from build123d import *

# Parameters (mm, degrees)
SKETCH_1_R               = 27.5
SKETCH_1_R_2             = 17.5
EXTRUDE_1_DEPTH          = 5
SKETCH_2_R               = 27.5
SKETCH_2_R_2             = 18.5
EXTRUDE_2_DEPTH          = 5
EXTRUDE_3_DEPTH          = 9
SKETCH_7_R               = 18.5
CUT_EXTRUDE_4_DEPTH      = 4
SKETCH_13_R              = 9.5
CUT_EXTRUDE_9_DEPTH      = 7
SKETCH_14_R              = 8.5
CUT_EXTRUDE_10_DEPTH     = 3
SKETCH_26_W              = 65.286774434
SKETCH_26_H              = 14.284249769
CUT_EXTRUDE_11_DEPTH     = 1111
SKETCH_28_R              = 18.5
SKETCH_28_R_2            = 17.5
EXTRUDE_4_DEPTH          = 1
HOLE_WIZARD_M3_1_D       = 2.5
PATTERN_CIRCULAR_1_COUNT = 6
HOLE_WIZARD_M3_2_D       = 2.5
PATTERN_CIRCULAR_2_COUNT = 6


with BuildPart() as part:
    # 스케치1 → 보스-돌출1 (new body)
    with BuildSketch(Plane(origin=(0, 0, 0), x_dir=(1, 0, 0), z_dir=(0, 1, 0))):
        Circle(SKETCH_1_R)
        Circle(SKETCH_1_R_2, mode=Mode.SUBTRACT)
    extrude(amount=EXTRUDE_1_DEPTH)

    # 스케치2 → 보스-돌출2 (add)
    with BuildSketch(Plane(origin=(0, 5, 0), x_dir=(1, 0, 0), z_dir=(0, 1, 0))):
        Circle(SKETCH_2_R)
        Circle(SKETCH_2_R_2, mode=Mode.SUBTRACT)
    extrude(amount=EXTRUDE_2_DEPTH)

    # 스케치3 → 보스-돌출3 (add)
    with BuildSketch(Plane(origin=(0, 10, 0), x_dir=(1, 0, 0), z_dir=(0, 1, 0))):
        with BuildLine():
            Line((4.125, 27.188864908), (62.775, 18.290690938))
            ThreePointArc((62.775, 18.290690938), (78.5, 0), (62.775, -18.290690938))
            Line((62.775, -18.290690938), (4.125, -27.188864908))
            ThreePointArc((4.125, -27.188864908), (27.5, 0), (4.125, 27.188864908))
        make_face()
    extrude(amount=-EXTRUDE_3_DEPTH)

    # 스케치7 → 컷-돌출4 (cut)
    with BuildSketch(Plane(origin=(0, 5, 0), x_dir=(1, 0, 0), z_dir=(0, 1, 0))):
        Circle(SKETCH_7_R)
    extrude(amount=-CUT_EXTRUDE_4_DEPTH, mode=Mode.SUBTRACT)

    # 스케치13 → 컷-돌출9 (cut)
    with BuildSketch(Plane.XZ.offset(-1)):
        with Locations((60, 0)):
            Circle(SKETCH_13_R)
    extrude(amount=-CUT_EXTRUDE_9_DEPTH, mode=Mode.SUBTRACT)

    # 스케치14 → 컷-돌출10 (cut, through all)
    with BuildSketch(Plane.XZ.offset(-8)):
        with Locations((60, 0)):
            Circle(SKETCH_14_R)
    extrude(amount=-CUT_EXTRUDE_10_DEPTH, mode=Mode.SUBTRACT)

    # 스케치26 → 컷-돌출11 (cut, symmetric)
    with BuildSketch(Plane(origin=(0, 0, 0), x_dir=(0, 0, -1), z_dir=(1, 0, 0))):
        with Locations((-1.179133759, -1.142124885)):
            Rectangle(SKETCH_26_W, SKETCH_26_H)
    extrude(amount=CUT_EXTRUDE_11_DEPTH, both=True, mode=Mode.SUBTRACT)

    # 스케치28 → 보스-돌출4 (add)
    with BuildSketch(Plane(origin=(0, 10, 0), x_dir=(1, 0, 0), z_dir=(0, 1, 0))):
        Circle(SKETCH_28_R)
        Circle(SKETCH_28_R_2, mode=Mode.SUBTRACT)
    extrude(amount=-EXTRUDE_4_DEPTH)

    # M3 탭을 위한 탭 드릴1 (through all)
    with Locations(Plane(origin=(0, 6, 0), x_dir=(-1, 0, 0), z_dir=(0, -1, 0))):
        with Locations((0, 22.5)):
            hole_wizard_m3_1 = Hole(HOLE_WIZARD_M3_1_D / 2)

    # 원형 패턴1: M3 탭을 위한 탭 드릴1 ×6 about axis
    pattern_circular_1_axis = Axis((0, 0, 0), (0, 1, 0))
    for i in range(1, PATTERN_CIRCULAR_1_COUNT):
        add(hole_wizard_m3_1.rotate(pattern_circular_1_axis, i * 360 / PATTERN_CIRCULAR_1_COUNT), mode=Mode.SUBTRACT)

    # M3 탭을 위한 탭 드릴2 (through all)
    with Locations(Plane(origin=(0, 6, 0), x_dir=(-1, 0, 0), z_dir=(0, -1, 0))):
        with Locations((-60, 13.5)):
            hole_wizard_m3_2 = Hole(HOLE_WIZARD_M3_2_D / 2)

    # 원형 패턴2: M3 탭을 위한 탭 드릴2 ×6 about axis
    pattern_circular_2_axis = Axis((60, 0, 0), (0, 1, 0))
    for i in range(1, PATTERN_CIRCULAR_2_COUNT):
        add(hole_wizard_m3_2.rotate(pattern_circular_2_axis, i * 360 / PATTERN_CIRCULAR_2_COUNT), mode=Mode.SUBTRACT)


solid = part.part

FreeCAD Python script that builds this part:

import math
import FreeCAD as App
import Part
import Sketcher
Q = App.Units.Quantity

doc = App.newDocument("Part")
body = doc.addObject("PartDesign::Body", "Body")

# Sketch on XZ plane
sketch1 = body.newObject("Sketcher::SketchObject", "Sketch")
sketch1.AttachmentSupport = (doc.getObject("XZ_Plane"), [""])
sketch1.MapMode = "FlatFace"
sketch1.addGeometry(Part.Circle(App.Vector(0, 0, 0), App.Vector(0, 0, 1), 27.5), False)
sketch1.addGeometry(Part.Circle(App.Vector(0, 0, 0), App.Vector(0, 0, 1), 17.5), False)
sketch1.addConstraint(Sketcher.Constraint("Coincident", 0, 3, -1, 1))
sketch1.addConstraint(Sketcher.Constraint("Coincident", 1, 3, -1, 1))
sketch1.addConstraint(Sketcher.Constraint("Diameter", 0, Q("55 mm")))
sketch1.addConstraint(Sketcher.Constraint("Diameter", 1, Q("35 mm")))
pad1 = body.newObject("PartDesign::Pad", "Pad")
pad1.Profile = sketch1
pad1.Length = 5
pad1.Reversed = True

# Sketch on XZ plane
sketch2 = body.newObject("Sketcher::SketchObject", "Sketch001")
sketch2.AttachmentSupport = (doc.getObject("XZ_Plane"), [""])
sketch2.MapMode = "FlatFace"
sketch2.AttachmentOffset = App.Placement(App.Vector(0, 0, -5), App.Rotation())
sketch2.addGeometry(Part.Circle(App.Vector(0, 0, 0), App.Vector(0, 0, 1), 27.5), False)
sketch2.addGeometry(Part.Circle(App.Vector(0, 0, 0), App.Vector(0, 0, 1), 18.5), False)
sketch2.addConstraint(Sketcher.Constraint("Coincident", 0, 3, -1, 1))
sketch2.addConstraint(Sketcher.Constraint("Coincident", 1, 3, -1, 1))
sketch2.addConstraint(Sketcher.Constraint("Diameter", 0, Q("55 mm")))
sketch2.addConstraint(Sketcher.Constraint("Diameter", 1, Q("37 mm")))
pad2 = body.newObject("PartDesign::Pad", "Pad001")
pad2.Profile = sketch2
pad2.Length = 5
pad2.Reversed = True

# Sketch on XZ plane
sketch3 = body.newObject("Sketcher::SketchObject", "Sketch002")
sketch3.AttachmentSupport = (doc.getObject("XZ_Plane"), [""])
sketch3.MapMode = "FlatFace"
sketch3.AttachmentOffset = App.Placement(App.Vector(0, 0, -10), App.Rotation())
sketch3.addGeometry(Part.LineSegment(App.Vector(62.775, -18.290691, 0), App.Vector(4.125, -27.188865, 0)), False)
sketch3.addGeometry(Part.ArcOfCircle(Part.Circle(App.Vector(0, 0, 0), App.Vector(0, 0, 1), 27.5), math.radians(-81.373073), math.radians(81.373073)), False)
sketch3.addGeometry(Part.LineSegment(App.Vector(4.125, 27.188865, 0), App.Vector(62.775, 18.290691, 0)), False)
sketch3.addGeometry(Part.ArcOfCircle(Part.Circle(App.Vector(60, 0, 0), App.Vector(0, 0, 1), 18.5), math.radians(-81.373073), math.radians(81.373073)), False)
sketch3.addConstraint(Sketcher.Constraint("Tangent", 0, 2, 1, 1))
sketch3.addConstraint(Sketcher.Constraint("Tangent", 1, 2, 2, 1))
sketch3.addConstraint(Sketcher.Constraint("Tangent", 2, 2, 3, 2))
sketch3.addConstraint(Sketcher.Constraint("Tangent", 3, 1, 0, 1))
sketch3.addConstraint(Sketcher.Constraint("Coincident", 1, 3, -1, 1))
sketch3.addConstraint(Sketcher.Constraint("PointOnObject", 3, 3, -1))
sketch3.addConstraint(Sketcher.Constraint("Radius", 1, Q("27.5 mm")))
sketch3.addConstraint(Sketcher.Constraint("Radius", 3, Q("18.5 mm")))
sketch3.addConstraint(Sketcher.Constraint("DistanceX", -1, 1, 3, 3, Q("60 mm")))
pad3 = body.newObject("PartDesign::Pad", "Pad002")
pad3.Profile = sketch3
pad3.Length = 9

# Sketch on XZ plane
sketch4 = body.newObject("Sketcher::SketchObject", "Sketch003")
sketch4.AttachmentSupport = (doc.getObject("XZ_Plane"), [""])
sketch4.MapMode = "FlatFace"
sketch4.AttachmentOffset = App.Placement(App.Vector(0, 0, -5), App.Rotation())
sketch4.addGeometry(Part.Circle(App.Vector(0, 0, 0), App.Vector(0, 0, 1), 18.5), False)
sketch4.addConstraint(Sketcher.Constraint("Coincident", 0, 3, -1, 1))
sketch4.addConstraint(Sketcher.Constraint("Diameter", 0, Q("37 mm")))
pocket1 = body.newObject("PartDesign::Pocket", "Pocket")
pocket1.Profile = sketch4
pocket1.Length = 4
pocket1.Reversed = True

# Sketch on XZ plane
sketch5 = body.newObject("Sketcher::SketchObject", "Sketch004")
sketch5.AttachmentSupport = (doc.getObject("XZ_Plane"), [""])
sketch5.MapMode = "FlatFace"
sketch5.AttachmentOffset = App.Placement(App.Vector(0, 0, -1), App.Rotation())
sketch5.addGeometry(Part.Circle(App.Vector(60, 0, 0), App.Vector(0, 0, 1), 9.5), False)
sketch5.addConstraint(Sketcher.Constraint("PointOnObject", 0, 3, -1))
sketch5.addConstraint(Sketcher.Constraint("Diameter", 0, Q("19 mm")))
sketch5.addConstraint(Sketcher.Constraint("DistanceX", -1, 1, 0, 3, Q("60 mm")))
pocket2 = body.newObject("PartDesign::Pocket", "Pocket001")
pocket2.Profile = sketch5
pocket2.Length = 7

# Sketch on XZ plane
sketch6 = body.newObject("Sketcher::SketchObject", "Sketch005")
sketch6.AttachmentSupport = (doc.getObject("XZ_Plane"), [""])
sketch6.MapMode = "FlatFace"
sketch6.AttachmentOffset = App.Placement(App.Vector(0, 0, -8), App.Rotation())
sketch6.addGeometry(Part.Circle(App.Vector(60, 0, 0), App.Vector(0, 0, 1), 8.5), False)
sketch6.addConstraint(Sketcher.Constraint("PointOnObject", 0, 3, -1))
sketch6.addConstraint(Sketcher.Constraint("Diameter", 0, Q("17 mm")))
sketch6.addConstraint(Sketcher.Constraint("DistanceX", -1, 1, 0, 3, Q("60 mm")))
pocket3 = body.newObject("PartDesign::Pocket", "Pocket002")
pocket3.Profile = sketch6
pocket3.Type = "ThroughAll"

# Sketch on YZ plane
sketch7 = body.newObject("Sketcher::SketchObject", "Sketch006")
sketch7.AttachmentSupport = (doc.getObject("YZ_Plane"), [""])
sketch7.MapMode = "FlatFace"
sketch7.addGeometry(Part.LineSegment(App.Vector(6, 33.822521, 0), App.Vector(-8.28425, 33.822521, 0)), False)
sketch7.addGeometry(Part.LineSegment(App.Vector(-8.28425, 33.822521, 0), App.Vector(-8.28425, -31.464253, 0)), False)
sketch7.addGeometry(Part.LineSegment(App.Vector(-8.28425, -31.464253, 0), App.Vector(6, -31.464253, 0)), False)
sketch7.addGeometry(Part.LineSegment(App.Vector(6, -31.464253, 0), App.Vector(6, 33.822521, 0)), False)
sketch7.addConstraint(Sketcher.Constraint("Coincident", 0, 2, 1, 1))
sketch7.addConstraint(Sketcher.Constraint("Coincident", 1, 2, 2, 1))
sketch7.addConstraint(Sketcher.Constraint("Coincident", 2, 2, 3, 1))
sketch7.addConstraint(Sketcher.Constraint("Coincident", 3, 2, 0, 1))
sketch7.addConstraint(Sketcher.Constraint("Horizontal", 0))
sketch7.addConstraint(Sketcher.Constraint("Vertical", 1))
sketch7.addConstraint(Sketcher.Constraint("Horizontal", 2))
sketch7.addConstraint(Sketcher.Constraint("Vertical", 3))
sketch7.addConstraint(Sketcher.Constraint("DistanceX", -1, 1, 2, 2, Q("6 mm")))
sketch7.addConstraint(Sketcher.Constraint("DistanceX", 0, 2, 0, 1, Q("14.28425 mm")))
sketch7.addConstraint(Sketcher.Constraint("DistanceY", 1, 2, 1, 1, Q("65.286774 mm")))
sketch7.addConstraint(Sketcher.Constraint("DistanceY", -1, 1, 0, 2, Q("33.822521 mm")))
pocket4 = body.newObject("PartDesign::Pocket", "Pocket003")
pocket4.Profile = sketch7
pocket4.Length = 2222
pocket4.Midplane = True

# Sketch on XZ plane
sketch8 = body.newObject("Sketcher::SketchObject", "Sketch007")
sketch8.AttachmentSupport = (doc.getObject("XZ_Plane"), [""])
sketch8.MapMode = "FlatFace"
sketch8.AttachmentOffset = App.Placement(App.Vector(0, 0, -10), App.Rotation())
sketch8.addGeometry(Part.Circle(App.Vector(0, 0, 0), App.Vector(0, 0, 1), 18.5), False)
sketch8.addGeometry(Part.Circle(App.Vector(0, 0, 0), App.Vector(0, 0, 1), 17.5), False)
sketch8.addConstraint(Sketcher.Constraint("Coincident", 0, 3, -1, 1))
sketch8.addConstraint(Sketcher.Constraint("Coincident", 1, 3, -1, 1))
sketch8.addConstraint(Sketcher.Constraint("Diameter", 0, Q("37 mm")))
sketch8.addConstraint(Sketcher.Constraint("Diameter", 1, Q("35 mm")))
pad4 = body.newObject("PartDesign::Pad", "Pad003")
pad4.Profile = sketch8
pad4.Length = 1

# Sketch on XZ plane
sketch9 = body.newObject("Sketcher::SketchObject", "Sketch008")
sketch9.AttachmentSupport = (doc.getObject("XZ_Plane"), [""])
sketch9.MapMode = "FlatFace"
sketch9.AttachmentOffset = App.Placement(App.Vector(0, 0, -6), App.Rotation())
sketch9.addGeometry(Part.Circle(App.Vector(0, -22.5, 0), App.Vector(0, 0, 1), 1.25), False)
sketch9.addConstraint(Sketcher.Constraint("PointOnObject", 0, 3, -2))
sketch9.addConstraint(Sketcher.Constraint("Diameter", 0, Q("2.5 mm")))
sketch9.addConstraint(Sketcher.Constraint("DistanceY", 0, 3, -1, 1, Q("22.5 mm")))
doc.recompute()
hole = body.newObject("PartDesign::Hole", "Hole")
hole.Profile = sketch9
hole.ThreadType = "None"
hole.Diameter = 2.5
hole.DepthType = "ThroughAll"
doc.recompute()

polarpattern = body.newObject("PartDesign::PolarPattern", "PolarPattern")
polarpattern.Originals = [hole]
polarpattern.Axis = (doc.getObject("Y_Axis"), [""])
polarpattern.Angle = 360
polarpattern.Occurrences = 6
body.Tip = polarpattern

# Sketch on XZ plane
sketch10 = body.newObject("Sketcher::SketchObject", "Sketch009")
sketch10.AttachmentSupport = (doc.getObject("XZ_Plane"), [""])
sketch10.MapMode = "FlatFace"
sketch10.AttachmentOffset = App.Placement(App.Vector(0, 0, -6), App.Rotation())
sketch10.addGeometry(Part.Circle(App.Vector(60, -13.5, 0), App.Vector(0, 0, 1), 1.25), False)
sketch10.addConstraint(Sketcher.Constraint("Diameter", 0, Q("2.5 mm")))
sketch10.addConstraint(Sketcher.Constraint("DistanceX", -1, 1, 0, 3, Q("60 mm")))
sketch10.addConstraint(Sketcher.Constraint("DistanceY", 0, 3, -1, 1, Q("13.5 mm")))
doc.recompute()
hole2 = body.newObject("PartDesign::Hole", "Hole001")
hole2.Profile = sketch10
hole2.ThreadType = "None"
hole2.Diameter = 2.5
hole2.DepthType = "ThroughAll"
doc.recompute()

datumline = body.newObject("PartDesign::Line", "DatumLine")
datumline.Placement = App.Placement(App.Vector(60, 0, 0), App.Rotation(App.Vector(0, 0, 1), App.Vector(0, 1, 0)))
polarpattern2 = body.newObject("PartDesign::PolarPattern", "PolarPattern001")
polarpattern2.Originals = [hole2]
polarpattern2.Axis = (datumline, [""])
polarpattern2.Angle = 360
polarpattern2.Occurrences = 6
body.Tip = polarpattern2

doc.recompute()
